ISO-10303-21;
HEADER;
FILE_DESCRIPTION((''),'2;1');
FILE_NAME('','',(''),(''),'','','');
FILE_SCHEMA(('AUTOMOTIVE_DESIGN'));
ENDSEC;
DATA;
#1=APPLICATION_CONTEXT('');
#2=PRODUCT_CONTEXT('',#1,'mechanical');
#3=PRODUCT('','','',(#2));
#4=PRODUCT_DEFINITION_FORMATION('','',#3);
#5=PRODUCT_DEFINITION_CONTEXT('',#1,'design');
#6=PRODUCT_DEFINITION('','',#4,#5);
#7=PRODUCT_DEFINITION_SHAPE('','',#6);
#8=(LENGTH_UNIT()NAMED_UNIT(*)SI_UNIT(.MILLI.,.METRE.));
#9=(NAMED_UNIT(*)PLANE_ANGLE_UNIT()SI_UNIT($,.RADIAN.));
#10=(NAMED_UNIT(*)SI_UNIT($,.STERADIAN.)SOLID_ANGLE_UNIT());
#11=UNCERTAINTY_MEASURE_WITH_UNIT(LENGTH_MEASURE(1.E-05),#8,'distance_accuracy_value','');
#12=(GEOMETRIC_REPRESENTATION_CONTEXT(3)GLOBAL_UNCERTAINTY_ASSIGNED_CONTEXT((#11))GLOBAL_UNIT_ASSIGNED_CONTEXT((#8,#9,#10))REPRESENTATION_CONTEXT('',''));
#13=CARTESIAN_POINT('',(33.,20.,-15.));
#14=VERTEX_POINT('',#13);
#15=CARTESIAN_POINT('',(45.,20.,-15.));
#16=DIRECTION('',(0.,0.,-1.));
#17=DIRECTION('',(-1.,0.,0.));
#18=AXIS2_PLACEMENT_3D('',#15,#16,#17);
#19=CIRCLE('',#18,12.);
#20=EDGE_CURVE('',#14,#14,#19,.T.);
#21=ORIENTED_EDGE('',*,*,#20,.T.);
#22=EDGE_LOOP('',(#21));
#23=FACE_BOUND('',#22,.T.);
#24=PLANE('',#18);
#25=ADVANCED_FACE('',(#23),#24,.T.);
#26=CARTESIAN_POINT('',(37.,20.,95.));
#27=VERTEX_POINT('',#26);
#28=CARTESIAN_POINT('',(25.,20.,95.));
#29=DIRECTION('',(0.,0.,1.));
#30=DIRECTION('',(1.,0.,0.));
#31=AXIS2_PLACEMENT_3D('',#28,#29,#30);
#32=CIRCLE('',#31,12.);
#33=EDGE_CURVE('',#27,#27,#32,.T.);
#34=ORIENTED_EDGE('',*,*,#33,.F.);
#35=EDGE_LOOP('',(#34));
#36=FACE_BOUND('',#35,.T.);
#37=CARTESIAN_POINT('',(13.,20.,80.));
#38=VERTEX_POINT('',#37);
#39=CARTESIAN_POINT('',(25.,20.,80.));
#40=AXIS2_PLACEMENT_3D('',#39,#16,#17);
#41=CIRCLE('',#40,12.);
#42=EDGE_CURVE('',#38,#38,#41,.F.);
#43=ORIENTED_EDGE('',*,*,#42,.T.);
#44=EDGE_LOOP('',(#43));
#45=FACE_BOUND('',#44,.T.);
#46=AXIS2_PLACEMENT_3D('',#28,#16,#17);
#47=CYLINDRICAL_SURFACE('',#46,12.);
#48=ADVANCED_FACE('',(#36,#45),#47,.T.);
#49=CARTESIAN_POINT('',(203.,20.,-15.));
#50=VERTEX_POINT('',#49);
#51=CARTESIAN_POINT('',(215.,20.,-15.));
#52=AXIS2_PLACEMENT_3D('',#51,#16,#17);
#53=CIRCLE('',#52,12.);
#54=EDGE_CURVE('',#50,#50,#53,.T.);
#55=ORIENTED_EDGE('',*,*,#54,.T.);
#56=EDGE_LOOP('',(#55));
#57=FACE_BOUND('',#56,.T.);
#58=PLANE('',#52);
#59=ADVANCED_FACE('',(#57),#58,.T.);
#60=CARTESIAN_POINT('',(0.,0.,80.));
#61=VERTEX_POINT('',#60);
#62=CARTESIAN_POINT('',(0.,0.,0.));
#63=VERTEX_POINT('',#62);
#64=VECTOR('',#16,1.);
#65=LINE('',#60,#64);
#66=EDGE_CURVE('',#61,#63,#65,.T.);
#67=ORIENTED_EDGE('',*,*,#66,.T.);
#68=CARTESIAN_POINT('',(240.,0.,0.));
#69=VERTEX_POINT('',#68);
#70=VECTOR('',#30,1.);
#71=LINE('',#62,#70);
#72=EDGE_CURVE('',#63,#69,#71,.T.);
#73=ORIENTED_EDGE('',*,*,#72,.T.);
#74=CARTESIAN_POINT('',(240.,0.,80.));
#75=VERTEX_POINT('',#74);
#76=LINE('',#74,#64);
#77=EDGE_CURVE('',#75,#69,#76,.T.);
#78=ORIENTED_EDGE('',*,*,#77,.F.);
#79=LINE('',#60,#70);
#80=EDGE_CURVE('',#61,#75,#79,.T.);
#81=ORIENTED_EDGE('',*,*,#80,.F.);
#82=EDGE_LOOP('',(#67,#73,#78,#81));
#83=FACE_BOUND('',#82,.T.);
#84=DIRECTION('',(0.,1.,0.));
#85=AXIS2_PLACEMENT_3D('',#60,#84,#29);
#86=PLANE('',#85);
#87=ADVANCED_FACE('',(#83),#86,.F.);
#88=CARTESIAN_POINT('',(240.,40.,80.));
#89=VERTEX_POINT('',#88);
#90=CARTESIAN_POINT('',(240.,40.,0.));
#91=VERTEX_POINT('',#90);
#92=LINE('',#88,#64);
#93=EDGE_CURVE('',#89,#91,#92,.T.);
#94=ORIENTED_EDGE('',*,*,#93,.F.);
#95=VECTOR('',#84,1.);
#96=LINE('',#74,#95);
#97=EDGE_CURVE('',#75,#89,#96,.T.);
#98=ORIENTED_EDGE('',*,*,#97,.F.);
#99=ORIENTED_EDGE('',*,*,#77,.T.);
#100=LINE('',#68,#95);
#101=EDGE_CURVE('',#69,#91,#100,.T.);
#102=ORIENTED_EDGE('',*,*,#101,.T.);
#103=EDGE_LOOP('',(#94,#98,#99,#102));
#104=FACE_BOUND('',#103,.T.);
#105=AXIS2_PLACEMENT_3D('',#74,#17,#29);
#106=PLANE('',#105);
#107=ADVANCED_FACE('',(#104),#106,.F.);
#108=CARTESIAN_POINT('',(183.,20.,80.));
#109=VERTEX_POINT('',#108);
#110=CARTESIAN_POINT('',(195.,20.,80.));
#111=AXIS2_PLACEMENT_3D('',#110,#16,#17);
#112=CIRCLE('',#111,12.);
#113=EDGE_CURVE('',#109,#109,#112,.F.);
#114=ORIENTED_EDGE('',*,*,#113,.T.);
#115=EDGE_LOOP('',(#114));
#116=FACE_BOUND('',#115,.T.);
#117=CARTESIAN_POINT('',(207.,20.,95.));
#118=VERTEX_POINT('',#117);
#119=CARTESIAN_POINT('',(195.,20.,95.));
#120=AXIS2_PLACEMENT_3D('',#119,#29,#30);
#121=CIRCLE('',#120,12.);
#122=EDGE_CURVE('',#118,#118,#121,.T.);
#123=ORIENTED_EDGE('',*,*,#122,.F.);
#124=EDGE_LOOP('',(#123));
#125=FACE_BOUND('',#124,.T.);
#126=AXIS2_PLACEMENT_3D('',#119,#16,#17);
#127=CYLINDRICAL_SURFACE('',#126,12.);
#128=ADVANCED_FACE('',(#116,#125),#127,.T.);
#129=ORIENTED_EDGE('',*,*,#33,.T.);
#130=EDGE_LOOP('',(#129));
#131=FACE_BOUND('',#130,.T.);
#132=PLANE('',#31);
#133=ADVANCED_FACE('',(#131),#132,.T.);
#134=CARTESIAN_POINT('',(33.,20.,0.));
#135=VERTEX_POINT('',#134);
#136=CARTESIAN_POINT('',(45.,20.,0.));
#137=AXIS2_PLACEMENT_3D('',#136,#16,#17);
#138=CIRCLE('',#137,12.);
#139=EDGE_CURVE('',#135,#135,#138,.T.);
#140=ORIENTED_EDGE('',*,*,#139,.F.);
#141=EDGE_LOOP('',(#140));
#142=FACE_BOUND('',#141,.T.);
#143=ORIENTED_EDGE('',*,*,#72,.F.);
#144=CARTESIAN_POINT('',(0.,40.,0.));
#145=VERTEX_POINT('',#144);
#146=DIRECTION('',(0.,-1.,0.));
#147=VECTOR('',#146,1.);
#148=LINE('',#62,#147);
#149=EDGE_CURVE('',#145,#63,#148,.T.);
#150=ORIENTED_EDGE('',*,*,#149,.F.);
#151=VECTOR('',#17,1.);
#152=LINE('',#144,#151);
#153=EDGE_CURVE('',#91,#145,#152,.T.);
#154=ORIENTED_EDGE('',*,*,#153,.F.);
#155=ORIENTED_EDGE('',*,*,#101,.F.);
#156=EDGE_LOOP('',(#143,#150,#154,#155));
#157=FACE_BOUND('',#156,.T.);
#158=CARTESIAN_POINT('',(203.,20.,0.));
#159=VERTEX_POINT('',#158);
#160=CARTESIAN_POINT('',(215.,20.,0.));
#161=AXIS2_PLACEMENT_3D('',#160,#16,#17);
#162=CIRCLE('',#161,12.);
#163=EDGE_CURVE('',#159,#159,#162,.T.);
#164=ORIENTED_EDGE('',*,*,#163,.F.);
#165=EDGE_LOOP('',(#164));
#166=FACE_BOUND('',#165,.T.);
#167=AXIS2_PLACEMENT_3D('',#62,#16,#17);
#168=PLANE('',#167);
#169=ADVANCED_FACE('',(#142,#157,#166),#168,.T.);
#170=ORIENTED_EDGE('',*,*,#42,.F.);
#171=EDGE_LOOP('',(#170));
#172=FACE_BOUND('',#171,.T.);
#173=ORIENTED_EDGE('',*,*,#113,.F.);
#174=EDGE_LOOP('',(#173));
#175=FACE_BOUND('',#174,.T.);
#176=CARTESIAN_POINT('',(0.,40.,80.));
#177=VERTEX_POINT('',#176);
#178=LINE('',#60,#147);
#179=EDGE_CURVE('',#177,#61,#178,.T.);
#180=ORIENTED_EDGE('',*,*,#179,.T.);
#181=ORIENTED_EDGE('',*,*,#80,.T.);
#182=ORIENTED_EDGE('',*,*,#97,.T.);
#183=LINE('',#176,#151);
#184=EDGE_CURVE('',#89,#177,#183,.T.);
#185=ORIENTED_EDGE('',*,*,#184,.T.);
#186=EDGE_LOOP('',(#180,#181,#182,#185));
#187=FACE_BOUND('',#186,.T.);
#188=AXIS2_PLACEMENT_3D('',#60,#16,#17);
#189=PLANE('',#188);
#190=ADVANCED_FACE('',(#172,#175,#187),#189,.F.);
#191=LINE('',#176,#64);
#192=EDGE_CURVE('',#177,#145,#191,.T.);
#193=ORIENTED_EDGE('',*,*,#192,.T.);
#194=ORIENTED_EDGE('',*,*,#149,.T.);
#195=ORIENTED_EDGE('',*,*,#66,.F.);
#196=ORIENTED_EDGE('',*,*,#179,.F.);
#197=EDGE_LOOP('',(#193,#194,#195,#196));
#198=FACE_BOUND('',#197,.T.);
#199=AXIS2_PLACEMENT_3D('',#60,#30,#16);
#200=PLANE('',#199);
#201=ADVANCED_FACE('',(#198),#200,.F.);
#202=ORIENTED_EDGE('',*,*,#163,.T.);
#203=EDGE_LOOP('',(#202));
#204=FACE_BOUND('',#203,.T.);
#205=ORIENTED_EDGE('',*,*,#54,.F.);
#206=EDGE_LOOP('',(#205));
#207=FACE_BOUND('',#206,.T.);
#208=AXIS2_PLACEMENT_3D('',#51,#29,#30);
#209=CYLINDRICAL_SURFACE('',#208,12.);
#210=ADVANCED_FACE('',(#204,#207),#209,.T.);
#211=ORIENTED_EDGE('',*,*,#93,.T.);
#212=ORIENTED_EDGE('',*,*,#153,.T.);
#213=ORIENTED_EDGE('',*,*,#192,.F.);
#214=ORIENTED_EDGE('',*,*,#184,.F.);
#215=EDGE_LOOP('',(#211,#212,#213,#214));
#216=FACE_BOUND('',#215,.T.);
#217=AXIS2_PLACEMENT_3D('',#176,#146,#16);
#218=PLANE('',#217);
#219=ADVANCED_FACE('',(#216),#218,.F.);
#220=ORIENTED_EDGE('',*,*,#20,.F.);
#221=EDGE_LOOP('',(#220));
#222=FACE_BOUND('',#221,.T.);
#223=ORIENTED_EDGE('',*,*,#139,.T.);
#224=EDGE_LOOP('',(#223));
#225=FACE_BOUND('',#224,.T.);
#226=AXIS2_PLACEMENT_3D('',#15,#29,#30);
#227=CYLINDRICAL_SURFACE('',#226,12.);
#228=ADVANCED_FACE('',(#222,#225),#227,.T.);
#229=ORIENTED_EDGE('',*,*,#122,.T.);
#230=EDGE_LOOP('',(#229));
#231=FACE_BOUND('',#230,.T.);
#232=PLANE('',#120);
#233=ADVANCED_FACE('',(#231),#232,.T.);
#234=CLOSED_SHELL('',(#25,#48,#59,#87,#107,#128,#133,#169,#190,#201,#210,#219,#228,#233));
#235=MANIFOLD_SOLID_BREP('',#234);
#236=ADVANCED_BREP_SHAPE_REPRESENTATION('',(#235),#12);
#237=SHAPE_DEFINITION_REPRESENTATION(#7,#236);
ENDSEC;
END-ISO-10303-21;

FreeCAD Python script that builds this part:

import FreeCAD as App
import Part
import Sketcher
Q = App.Units.Quantity

doc = App.newDocument("Part")
body = doc.addObject("PartDesign::Body", "Body")

# Sketch on XY plane
sketch1 = body.newObject("Sketcher::SketchObject", "Sketch")
sketch1.AttachmentSupport = (doc.getObject("XY_Plane"), [""])
sketch1.MapMode = "FlatFace"
sketch1.addGeometry(Part.LineSegment(App.Vector(0, 40, 0), App.Vector(0, 0, 0)), False)
sketch1.addGeometry(Part.LineSegment(App.Vector(0, 0, 0), App.Vector(240, 0, 0)), False)
sketch1.addGeometry(Part.LineSegment(App.Vector(240, 0, 0), App.Vector(240, 40, 0)), False)
sketch1.addGeometry(Part.LineSegment(App.Vector(240, 40, 0), App.Vector(0, 40, 0)), False)
sketch1.addConstraint(Sketcher.Constraint("Coincident", 0, 2, 1, 1))
sketch1.addConstraint(Sketcher.Constraint("Coincident", 1, 2, 2, 1))
sketch1.addConstraint(Sketcher.Constraint("Coincident", 2, 2, 3, 1))
sketch1.addConstraint(Sketcher.Constraint("Coincident", 3, 2, 0, 1))
sketch1.addConstraint(Sketcher.Constraint("Vertical", 0))
sketch1.addConstraint(Sketcher.Constraint("Horizontal", 1))
sketch1.addConstraint(Sketcher.Constraint("Vertical", 2))
sketch1.addConstraint(Sketcher.Constraint("Horizontal", 3))
sketch1.addConstraint(Sketcher.Constraint("Coincident", 0, 2, -1, 1))
sketch1.addConstraint(Sketcher.Constraint("DistanceX", 1, 1, 1, 2, Q("240 mm")))
sketch1.addConstraint(Sketcher.Constraint("DistanceY", 0, 2, 0, 1, Q("40 mm")))
pad1 = body.newObject("PartDesign::Pad", "Pad")
pad1.Profile = sketch1
pad1.Length = 80

# Sketch on XY plane
sketch2 = body.newObject("Sketcher::SketchObject", "Sketch001")
sketch2.AttachmentSupport = (doc.getObject("XY_Plane"), [""])
sketch2.MapMode = "FlatFace"
sketch2.addGeometry(Part.Circle(App.Vector(215, 20, 0), App.Vector(0, 0, 1), 12), False)
sketch2.addGeometry(Part.Circle(App.Vector(45, 20, 0), App.Vector(0, 0, 1), 12), False)
sketch2.addConstraint(Sketcher.Constraint("Equal", 0, 1))
sketch2.addConstraint(Sketcher.Constraint("Horizontal", 0, 3, 1, 3))
sketch2.addConstraint(Sketcher.Constraint("Diameter", 0, Q("24 mm")))
sketch2.addConstraint(Sketcher.Constraint("DistanceX", -1, 1, 0, 3, Q("215 mm")))
sketch2.addConstraint(Sketcher.Constraint("DistanceY", -1, 1, 0, 3, Q("20 mm")))
sketch2.addConstraint(Sketcher.Constraint("DistanceX", -1, 1, 1, 3, Q("45 mm")))
pad2 = body.newObject("PartDesign::Pad", "Pad001")
pad2.Profile = sketch2
pad2.Length = 15
pad2.Reversed = True

# Sketch on XY plane
sketch3 = body.newObject("Sketcher::SketchObject", "Sketch002")
sketch3.AttachmentSupport = (doc.getObject("XY_Plane"), [""])
sketch3.MapMode = "FlatFace"
sketch3.AttachmentOffset = App.Placement(App.Vector(0, 0, 80), App.Rotation())
sketch3.addGeometry(Part.Circle(App.Vector(25, 20, 0), App.Vector(0, 0, 1), 12), False)
sketch3.addGeometry(Part.Circle(App.Vector(195, 20, 0), App.Vector(0, 0, 1), 12), False)
sketch3.addConstraint(Sketcher.Constraint("Equal", 0, 1))
sketch3.addConstraint(Sketcher.Constraint("Horizontal", 0, 3, 1, 3))
sketch3.addConstraint(Sketcher.Constraint("Diameter", 0, Q("24 mm")))
sketch3.addConstraint(Sketcher.Constraint("DistanceX", -1, 1, 0, 3, Q("25 mm")))
sketch3.addConstraint(Sketcher.Constraint("DistanceY", -1, 1, 0, 3, Q("20 mm")))
sketch3.addConstraint(Sketcher.Constraint("DistanceX", -1, 1, 1, 3, Q("195 mm")))
pad3 = body.newObject("PartDesign::Pad", "Pad002")
pad3.Profile = sketch3
pad3.Length = 15

doc.recompute()
